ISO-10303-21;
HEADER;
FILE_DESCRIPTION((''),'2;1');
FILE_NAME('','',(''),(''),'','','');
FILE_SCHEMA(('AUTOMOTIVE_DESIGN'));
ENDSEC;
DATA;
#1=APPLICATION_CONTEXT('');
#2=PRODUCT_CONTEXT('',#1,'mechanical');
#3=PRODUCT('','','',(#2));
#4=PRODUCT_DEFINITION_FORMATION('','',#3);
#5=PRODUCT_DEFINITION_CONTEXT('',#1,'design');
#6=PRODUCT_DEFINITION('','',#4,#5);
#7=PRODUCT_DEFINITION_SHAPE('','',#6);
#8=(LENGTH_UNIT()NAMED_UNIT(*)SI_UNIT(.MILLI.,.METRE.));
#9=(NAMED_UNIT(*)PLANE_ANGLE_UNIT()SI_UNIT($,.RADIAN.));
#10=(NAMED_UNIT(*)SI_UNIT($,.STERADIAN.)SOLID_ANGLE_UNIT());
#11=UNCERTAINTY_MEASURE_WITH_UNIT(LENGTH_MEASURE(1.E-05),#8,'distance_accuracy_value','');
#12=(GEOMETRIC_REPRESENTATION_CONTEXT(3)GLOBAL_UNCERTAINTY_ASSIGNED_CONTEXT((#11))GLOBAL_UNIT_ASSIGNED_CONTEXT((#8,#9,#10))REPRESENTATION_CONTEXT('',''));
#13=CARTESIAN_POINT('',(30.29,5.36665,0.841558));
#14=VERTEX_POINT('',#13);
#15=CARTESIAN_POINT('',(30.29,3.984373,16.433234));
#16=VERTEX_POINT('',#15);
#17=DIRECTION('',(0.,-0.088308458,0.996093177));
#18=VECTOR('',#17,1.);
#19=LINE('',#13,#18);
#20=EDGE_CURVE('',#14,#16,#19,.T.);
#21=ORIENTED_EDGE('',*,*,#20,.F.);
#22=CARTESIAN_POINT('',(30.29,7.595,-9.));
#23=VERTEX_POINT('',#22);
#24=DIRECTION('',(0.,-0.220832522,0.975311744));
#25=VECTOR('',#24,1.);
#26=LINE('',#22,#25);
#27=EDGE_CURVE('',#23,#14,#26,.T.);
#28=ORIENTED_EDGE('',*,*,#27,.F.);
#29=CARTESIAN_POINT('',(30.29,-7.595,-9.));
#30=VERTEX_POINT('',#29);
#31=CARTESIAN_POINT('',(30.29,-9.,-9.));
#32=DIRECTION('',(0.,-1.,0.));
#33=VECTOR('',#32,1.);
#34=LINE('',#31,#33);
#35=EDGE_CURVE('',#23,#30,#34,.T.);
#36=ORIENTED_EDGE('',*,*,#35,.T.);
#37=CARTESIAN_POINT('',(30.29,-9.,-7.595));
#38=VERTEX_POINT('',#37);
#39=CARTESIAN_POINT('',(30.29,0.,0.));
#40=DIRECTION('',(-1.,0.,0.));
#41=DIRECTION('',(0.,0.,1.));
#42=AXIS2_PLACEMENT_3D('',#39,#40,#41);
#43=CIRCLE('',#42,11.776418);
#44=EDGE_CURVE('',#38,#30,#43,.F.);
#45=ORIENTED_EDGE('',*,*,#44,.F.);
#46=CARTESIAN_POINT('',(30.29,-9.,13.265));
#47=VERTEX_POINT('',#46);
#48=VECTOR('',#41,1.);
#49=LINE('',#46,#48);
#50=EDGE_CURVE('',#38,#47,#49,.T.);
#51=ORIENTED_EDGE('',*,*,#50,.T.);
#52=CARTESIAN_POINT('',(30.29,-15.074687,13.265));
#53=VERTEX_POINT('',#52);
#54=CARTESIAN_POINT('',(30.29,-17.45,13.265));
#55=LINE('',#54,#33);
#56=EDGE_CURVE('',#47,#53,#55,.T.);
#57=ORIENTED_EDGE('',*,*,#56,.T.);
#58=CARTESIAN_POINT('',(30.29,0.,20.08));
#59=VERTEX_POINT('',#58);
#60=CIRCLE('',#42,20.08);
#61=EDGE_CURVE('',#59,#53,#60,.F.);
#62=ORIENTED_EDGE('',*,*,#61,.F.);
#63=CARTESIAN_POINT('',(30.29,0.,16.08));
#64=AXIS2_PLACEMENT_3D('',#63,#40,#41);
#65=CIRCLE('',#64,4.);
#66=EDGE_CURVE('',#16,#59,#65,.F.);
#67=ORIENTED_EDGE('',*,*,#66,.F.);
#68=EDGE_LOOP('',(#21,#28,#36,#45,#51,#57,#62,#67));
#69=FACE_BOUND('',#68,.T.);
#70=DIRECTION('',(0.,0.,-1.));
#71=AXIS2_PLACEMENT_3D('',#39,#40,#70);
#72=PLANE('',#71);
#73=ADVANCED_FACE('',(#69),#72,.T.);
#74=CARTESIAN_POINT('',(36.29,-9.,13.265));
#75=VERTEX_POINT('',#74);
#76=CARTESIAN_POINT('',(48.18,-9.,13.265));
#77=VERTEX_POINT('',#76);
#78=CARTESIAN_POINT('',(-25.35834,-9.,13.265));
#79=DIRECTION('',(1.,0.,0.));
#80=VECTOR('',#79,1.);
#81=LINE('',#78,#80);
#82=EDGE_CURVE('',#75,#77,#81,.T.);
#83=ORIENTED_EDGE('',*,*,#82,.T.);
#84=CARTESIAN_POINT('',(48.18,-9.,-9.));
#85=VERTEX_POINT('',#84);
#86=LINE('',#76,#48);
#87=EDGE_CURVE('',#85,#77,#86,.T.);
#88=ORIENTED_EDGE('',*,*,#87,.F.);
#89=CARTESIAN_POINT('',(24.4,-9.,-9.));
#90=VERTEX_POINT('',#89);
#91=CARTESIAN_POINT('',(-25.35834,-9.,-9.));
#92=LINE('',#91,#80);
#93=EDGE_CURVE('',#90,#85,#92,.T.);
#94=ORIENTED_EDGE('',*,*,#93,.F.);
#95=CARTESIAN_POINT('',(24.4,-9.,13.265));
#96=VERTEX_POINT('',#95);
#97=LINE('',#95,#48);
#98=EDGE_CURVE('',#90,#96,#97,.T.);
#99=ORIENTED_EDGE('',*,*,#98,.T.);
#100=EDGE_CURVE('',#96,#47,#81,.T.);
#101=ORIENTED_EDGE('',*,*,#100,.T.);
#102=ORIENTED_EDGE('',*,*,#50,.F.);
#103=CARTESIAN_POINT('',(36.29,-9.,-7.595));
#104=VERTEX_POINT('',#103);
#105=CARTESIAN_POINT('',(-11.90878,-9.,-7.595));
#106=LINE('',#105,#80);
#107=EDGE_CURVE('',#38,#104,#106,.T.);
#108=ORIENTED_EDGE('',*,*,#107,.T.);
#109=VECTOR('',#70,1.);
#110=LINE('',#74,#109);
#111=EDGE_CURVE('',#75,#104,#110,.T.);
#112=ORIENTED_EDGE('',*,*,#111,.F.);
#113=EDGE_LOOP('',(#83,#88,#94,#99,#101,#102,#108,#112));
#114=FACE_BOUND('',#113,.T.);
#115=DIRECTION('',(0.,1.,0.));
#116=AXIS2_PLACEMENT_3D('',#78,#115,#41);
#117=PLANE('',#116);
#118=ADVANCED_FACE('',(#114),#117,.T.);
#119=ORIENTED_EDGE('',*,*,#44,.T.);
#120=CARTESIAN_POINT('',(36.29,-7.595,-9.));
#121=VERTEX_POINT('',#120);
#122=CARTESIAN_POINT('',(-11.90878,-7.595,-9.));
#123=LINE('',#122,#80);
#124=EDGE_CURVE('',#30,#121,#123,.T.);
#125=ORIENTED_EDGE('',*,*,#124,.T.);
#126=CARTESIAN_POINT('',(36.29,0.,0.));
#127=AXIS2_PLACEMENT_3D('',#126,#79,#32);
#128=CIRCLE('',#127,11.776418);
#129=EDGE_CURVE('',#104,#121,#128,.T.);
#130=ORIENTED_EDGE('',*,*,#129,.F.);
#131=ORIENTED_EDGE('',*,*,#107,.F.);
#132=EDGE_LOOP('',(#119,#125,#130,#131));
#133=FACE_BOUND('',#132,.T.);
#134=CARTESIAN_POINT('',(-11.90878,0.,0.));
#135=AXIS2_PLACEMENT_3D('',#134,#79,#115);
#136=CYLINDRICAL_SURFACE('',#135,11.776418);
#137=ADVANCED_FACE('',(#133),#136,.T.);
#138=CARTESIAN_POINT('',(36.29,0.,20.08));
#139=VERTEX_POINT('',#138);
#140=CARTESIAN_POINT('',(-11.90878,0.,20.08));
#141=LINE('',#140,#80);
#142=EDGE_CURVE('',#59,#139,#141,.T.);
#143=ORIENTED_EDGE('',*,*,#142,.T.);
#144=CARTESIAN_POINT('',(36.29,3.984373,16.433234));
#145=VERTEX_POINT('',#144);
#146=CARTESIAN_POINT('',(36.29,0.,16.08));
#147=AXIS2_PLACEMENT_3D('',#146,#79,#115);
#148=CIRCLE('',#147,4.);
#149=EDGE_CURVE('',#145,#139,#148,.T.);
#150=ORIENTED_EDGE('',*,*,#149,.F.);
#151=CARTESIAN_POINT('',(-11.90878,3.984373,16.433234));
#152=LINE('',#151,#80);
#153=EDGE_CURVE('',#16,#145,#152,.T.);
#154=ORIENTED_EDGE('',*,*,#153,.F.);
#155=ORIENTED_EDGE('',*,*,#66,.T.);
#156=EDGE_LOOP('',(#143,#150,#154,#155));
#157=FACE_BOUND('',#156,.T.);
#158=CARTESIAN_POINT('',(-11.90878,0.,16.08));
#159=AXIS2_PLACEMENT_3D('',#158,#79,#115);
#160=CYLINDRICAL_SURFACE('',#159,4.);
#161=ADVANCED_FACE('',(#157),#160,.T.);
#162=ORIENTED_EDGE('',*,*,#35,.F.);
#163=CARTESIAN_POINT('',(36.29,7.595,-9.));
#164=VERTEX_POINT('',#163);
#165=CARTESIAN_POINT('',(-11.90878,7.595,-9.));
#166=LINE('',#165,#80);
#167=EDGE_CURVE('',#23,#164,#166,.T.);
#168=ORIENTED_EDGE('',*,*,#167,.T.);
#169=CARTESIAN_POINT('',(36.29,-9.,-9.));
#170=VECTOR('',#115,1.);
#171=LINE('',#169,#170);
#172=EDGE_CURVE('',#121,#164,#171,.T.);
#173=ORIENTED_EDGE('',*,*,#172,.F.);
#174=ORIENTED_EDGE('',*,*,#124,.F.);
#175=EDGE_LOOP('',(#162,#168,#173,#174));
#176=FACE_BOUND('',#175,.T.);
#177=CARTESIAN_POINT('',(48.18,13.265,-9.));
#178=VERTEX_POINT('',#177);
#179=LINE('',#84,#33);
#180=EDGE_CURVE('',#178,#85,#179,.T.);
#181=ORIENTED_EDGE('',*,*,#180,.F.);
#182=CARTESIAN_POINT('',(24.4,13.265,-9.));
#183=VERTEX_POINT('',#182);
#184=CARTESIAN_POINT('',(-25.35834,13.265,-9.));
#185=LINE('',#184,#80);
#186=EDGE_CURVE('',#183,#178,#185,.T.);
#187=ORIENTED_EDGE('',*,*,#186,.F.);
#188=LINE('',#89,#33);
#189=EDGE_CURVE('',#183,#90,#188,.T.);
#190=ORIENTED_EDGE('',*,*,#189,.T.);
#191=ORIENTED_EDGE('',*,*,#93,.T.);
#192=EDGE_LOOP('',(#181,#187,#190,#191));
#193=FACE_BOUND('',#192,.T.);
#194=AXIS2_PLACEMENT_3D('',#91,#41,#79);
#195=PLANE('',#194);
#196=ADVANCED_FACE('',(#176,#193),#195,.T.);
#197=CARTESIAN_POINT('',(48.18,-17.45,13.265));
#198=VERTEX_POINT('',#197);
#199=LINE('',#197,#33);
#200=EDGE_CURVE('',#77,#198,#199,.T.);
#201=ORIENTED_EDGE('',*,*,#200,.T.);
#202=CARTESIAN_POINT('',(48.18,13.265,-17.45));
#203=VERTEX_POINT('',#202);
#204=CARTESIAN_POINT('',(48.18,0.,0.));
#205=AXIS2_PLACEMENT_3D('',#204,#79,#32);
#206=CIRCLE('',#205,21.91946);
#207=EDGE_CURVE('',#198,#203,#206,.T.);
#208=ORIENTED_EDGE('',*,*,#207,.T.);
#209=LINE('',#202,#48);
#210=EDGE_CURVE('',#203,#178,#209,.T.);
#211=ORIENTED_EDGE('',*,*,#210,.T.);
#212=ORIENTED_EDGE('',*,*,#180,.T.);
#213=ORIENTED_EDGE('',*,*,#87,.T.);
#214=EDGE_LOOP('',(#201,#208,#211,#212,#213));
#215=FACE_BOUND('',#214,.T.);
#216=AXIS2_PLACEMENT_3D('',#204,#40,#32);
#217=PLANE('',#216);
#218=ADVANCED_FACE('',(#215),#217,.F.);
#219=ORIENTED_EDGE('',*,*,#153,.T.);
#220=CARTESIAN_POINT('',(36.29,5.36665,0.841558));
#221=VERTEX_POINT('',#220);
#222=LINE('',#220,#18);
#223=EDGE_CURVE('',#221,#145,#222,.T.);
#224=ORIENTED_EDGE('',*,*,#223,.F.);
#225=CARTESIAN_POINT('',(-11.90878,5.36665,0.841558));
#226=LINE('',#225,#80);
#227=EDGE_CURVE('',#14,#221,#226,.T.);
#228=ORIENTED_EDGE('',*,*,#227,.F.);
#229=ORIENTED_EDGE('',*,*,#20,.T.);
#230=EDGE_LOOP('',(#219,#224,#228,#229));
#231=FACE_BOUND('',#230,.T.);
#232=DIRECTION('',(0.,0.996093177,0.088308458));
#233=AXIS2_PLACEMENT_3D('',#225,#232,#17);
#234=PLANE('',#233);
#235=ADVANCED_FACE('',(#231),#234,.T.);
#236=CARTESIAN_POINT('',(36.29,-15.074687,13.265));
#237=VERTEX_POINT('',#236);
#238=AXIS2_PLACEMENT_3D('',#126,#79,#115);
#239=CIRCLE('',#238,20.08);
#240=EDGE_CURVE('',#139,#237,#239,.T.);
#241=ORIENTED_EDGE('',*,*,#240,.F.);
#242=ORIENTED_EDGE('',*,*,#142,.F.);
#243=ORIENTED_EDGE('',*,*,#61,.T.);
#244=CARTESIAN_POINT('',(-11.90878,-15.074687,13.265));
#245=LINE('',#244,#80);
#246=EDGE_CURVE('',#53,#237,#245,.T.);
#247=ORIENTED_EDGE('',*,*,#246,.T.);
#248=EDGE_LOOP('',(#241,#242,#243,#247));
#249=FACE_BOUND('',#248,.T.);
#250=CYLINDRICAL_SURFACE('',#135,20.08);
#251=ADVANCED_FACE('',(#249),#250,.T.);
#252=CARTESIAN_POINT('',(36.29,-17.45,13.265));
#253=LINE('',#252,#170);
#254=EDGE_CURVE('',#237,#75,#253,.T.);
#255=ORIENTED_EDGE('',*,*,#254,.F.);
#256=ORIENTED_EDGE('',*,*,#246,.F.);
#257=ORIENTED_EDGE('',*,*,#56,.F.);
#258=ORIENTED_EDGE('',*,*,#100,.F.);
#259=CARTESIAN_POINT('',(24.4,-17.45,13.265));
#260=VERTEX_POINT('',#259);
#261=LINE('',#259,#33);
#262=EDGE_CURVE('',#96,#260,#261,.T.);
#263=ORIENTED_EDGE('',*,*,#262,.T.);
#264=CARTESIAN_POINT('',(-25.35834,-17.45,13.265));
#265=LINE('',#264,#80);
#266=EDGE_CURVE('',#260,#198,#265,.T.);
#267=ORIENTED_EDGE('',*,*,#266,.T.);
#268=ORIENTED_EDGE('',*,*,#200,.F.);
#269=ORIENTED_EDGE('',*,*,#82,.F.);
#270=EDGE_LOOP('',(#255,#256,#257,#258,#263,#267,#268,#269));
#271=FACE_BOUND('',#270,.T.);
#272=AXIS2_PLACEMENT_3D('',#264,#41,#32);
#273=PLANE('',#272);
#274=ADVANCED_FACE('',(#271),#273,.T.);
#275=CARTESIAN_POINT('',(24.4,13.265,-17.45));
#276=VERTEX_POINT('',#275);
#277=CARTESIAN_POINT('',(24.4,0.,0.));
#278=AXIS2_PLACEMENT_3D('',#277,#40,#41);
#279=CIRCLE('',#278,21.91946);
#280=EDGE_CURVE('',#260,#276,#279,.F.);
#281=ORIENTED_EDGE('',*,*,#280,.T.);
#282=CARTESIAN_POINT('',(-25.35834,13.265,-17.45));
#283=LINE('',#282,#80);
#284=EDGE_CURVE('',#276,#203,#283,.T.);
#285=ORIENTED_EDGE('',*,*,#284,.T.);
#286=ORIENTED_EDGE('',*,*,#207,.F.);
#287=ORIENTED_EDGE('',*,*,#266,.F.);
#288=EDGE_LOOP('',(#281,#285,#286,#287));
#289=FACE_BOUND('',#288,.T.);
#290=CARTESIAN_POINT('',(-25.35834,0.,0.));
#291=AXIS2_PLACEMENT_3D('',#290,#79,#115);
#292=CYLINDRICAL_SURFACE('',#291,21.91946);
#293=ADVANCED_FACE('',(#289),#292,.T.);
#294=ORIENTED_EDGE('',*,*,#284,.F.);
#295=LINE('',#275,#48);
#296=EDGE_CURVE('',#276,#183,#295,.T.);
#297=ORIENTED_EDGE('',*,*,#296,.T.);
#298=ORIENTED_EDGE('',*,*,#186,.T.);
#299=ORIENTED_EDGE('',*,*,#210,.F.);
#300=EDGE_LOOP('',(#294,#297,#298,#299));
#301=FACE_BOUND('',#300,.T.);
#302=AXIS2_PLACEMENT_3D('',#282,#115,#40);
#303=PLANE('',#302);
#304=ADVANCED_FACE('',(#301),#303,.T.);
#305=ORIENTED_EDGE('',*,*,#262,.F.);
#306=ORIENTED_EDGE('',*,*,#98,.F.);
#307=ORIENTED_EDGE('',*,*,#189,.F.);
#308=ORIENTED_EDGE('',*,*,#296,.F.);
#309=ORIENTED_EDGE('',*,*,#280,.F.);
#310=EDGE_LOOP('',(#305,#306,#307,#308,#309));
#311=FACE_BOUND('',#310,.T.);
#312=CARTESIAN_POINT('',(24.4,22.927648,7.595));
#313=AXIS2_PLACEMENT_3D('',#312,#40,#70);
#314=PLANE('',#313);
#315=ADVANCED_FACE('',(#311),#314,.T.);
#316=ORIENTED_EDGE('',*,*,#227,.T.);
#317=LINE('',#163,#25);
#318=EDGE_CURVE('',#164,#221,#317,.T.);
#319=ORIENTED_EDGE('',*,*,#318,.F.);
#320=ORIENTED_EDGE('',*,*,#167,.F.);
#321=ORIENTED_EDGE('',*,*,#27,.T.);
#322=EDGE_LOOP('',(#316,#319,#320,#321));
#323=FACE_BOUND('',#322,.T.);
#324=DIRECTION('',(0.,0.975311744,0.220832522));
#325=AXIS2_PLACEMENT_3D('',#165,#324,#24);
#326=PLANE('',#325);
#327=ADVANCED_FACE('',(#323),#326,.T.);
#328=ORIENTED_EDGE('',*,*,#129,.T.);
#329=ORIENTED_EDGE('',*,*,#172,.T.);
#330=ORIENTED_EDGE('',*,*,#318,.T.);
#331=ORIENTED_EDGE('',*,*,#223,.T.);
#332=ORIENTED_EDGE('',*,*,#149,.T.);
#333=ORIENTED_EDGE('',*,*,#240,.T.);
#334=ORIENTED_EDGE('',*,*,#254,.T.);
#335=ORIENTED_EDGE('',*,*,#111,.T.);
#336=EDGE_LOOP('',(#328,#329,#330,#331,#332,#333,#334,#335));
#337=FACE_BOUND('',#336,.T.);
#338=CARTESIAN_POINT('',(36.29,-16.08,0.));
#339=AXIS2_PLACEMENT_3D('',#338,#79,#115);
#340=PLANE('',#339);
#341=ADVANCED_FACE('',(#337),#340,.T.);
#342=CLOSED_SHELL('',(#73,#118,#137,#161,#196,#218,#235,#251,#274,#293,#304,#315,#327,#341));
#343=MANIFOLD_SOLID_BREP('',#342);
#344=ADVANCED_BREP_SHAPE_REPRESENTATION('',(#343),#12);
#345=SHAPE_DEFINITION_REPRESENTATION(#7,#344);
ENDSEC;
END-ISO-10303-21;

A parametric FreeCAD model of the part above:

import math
import FreeCAD as App
import Part
import Sketcher
from FreeCAD import Vector
Q = App.Units.Quantity

doc = App.newDocument("Part")
body = doc.addObject("PartDesign::Body", "Body")

# Sketch on YZ plane
sketch1 = doc.addObject("Sketcher::SketchObject", "Sketch")
body.addObject(sketch1)
sketch1.AttachmentSupport = (doc.YZ_Plane, [""])
sketch1.MapMode = "FlatFace"
sketch1.AttachmentOffset = App.Placement(Vector(0, 0, 48.18), App.Rotation())
sketch1.addGeometry(Part.LineSegment(Vector(13, -17, 0), Vector(13, -9, 0)), False)
sketch1.addGeometry(Part.LineSegment(Vector(13, -9, 0), Vector(-9, -9, 0)), False)
sketch1.addGeometry(Part.LineSegment(Vector(-9, -9, 0), Vector(-9, 13, 0)), False)
sketch1.addGeometry(Part.LineSegment(Vector(-9, 13, 0), Vector(-17, 13, 0)), False)
sketch1.addGeometry(Part.ArcOfCircle(Part.Circle(Vector(0, 0, 0), Vector(0, 0, 1), 22), math.radians(143), math.radians(307)), False)
sketch1.addConstraint(Sketcher.Constraint("Coincident", 0, 2, 1, 1))
sketch1.addConstraint(Sketcher.Constraint("Coincident", 1, 2, 2, 1))
sketch1.addConstraint(Sketcher.Constraint("Coincident", 2, 2, 3, 1))
sketch1.addConstraint(Sketcher.Constraint("Coincident", 3, 2, 4, 1))
sketch1.addConstraint(Sketcher.Constraint("Coincident", 4, 2, 0, 1))
sketch1.addConstraint(Sketcher.Constraint("Vertical", 0))
sketch1.addConstraint(Sketcher.Constraint("Horizontal", 1))
sketch1.addConstraint(Sketcher.Constraint("Vertical", 2))
sketch1.addConstraint(Sketcher.Constraint("Horizontal", 3))
sketch1.addConstraint(Sketcher.Constraint("Coincident", 4, 3, -1, 1))
sketch1.addConstraint(Sketcher.Constraint("Equal", 3, 0))
sketch1.addConstraint(Sketcher.Constraint("Equal", 1, 2))
sketch1.addConstraint(Sketcher.Constraint("DistanceY", 0, 2, -1, 1, Q("9 mm")))
sketch1.addConstraint(Sketcher.Constraint("DistanceX", 3, 2, 3, 1, Q("8.45 mm")))
sketch1.addConstraint(Sketcher.Constraint("DistanceX", 1, 2, 1, 1, Q("22.265 mm")))
pad1 = doc.addObject("PartDesign::Pad", "Pad")
body.addObject(pad1)
pad1.Profile = sketch1
pad1.Length = 23.78
pad1.Reversed = True

# Sketch on YZ plane
sketch2 = doc.addObject("Sketcher::SketchObject", "Sketch001")
body.addObject(sketch2)
sketch2.AttachmentSupport = (doc.YZ_Plane, [""])
sketch2.MapMode = "FlatFace"
sketch2.AttachmentOffset = App.Placement(Vector(0, 0, 36.29), App.Rotation())
sketch2.addGeometry(Part.LineSegment(Vector(-16.4, -4, 0), Vector(-9, -4.6, 0)), False)
sketch2.addGeometry(Part.LineSegment(Vector(-9, -4.6, 0), Vector(-9, -7.6, 0)), False)
sketch2.addGeometry(Part.ArcOfCircle(Part.Circle(Vector(0, 0, 0), Vector(0, 0, 1), 11.8), math.radians(-140), math.radians(-50)), False)
sketch2.addGeometry(Part.LineSegment(Vector(7.6, -9, 0), Vector(5.4, 0.8, 0)), False)
sketch2.addGeometry(Part.LineSegment(Vector(5.4, 0.8, 0), Vector(4, 16.4, 0)), False)
sketch2.addGeometry(Part.ArcOfCircle(Part.Circle(Vector(0, 16.1, 0), Vector(0, 0, 1), 4), math.radians(5), math.radians(90)), False)
sketch2.addGeometry(Part.ArcOfCircle(Part.Circle(Vector(0, 0, 0), Vector(0, 0, 1), 20.1), math.radians(90), math.radians(180)), False)
sketch2.addGeometry(Part.ArcOfCircle(Part.Circle(Vector(-16.1, 0, 0), Vector(0, 0, 1), 4), math.radians(180), math.radians(265)), False)
sketch2.addConstraint(Sketcher.Constraint("Coincident", 0, 2, 1, 1))
sketch2.addConstraint(Sketcher.Constraint("Coincident", 1, 2, 2, 1))
sketch2.addConstraint(Sketcher.Constraint("Coincident", 2, 2, 3, 1))
sketch2.addConstraint(Sketcher.Constraint("Coincident", 3, 2, 4, 1))
sketch2.addConstraint(Sketcher.Constraint("Tangent", 4, 2, 5, 1))
sketch2.addConstraint(Sketcher.Constraint("Tangent", 5, 2, 6, 1))
sketch2.addConstraint(Sketcher.Constraint("Tangent", 6, 2, 7, 1))
sketch2.addConstraint(Sketcher.Constraint("Tangent", 7, 2, 0, 1))
sketch2.addConstraint(Sketcher.Constraint("Vertical", 1))
sketch2.addConstraint(Sketcher.Constraint("Coincident", 2, 3, -1, 1))
sketch2.addConstraint(Sketcher.Constraint("Coincident", 6, 3, -1, 1))
sketch2.addConstraint(Sketcher.Constraint("Equal", 5, 7))
sketch2.addConstraint(Sketcher.Constraint("PointOnObject", 5, 3, -2))
sketch2.addConstraint(Sketcher.Constraint("PointOnObject", 7, 3, -1))
sketch2.addConstraint(Sketcher.Constraint("Radius", 5, Q("4 mm")))
sketch2.addConstraint(Sketcher.Constraint("Radius", 6, Q("20.08 mm")))
sketch2.addConstraint(Sketcher.Constraint("DistanceX", 0, 2, -1, 1, Q("9 mm")))
sketch2.addConstraint(Sketcher.Constraint("DistanceY", 2, 2, -1, 1, Q("9 mm")))
sketch2.addConstraint(Sketcher.Constraint("Radius", 2, Q("11.776418 mm")))
sketch2.addConstraint(Sketcher.Constraint("DistanceY", 0, 2, 4, 2, Q("21.076599 mm")))
sketch2.addConstraint(Sketcher.Constraint("Distance", 0, Q("7.462388 mm")))
sketch2.addConstraint(Sketcher.Constraint("Distance", 3, Q("10.090679 mm")))
pad2 = doc.addObject("PartDesign::Pad", "Pad001")
body.addObject(pad2)
pad2.Profile = sketch2
pad2.Length = 6
pad2.Reversed = True

doc.recompute()
